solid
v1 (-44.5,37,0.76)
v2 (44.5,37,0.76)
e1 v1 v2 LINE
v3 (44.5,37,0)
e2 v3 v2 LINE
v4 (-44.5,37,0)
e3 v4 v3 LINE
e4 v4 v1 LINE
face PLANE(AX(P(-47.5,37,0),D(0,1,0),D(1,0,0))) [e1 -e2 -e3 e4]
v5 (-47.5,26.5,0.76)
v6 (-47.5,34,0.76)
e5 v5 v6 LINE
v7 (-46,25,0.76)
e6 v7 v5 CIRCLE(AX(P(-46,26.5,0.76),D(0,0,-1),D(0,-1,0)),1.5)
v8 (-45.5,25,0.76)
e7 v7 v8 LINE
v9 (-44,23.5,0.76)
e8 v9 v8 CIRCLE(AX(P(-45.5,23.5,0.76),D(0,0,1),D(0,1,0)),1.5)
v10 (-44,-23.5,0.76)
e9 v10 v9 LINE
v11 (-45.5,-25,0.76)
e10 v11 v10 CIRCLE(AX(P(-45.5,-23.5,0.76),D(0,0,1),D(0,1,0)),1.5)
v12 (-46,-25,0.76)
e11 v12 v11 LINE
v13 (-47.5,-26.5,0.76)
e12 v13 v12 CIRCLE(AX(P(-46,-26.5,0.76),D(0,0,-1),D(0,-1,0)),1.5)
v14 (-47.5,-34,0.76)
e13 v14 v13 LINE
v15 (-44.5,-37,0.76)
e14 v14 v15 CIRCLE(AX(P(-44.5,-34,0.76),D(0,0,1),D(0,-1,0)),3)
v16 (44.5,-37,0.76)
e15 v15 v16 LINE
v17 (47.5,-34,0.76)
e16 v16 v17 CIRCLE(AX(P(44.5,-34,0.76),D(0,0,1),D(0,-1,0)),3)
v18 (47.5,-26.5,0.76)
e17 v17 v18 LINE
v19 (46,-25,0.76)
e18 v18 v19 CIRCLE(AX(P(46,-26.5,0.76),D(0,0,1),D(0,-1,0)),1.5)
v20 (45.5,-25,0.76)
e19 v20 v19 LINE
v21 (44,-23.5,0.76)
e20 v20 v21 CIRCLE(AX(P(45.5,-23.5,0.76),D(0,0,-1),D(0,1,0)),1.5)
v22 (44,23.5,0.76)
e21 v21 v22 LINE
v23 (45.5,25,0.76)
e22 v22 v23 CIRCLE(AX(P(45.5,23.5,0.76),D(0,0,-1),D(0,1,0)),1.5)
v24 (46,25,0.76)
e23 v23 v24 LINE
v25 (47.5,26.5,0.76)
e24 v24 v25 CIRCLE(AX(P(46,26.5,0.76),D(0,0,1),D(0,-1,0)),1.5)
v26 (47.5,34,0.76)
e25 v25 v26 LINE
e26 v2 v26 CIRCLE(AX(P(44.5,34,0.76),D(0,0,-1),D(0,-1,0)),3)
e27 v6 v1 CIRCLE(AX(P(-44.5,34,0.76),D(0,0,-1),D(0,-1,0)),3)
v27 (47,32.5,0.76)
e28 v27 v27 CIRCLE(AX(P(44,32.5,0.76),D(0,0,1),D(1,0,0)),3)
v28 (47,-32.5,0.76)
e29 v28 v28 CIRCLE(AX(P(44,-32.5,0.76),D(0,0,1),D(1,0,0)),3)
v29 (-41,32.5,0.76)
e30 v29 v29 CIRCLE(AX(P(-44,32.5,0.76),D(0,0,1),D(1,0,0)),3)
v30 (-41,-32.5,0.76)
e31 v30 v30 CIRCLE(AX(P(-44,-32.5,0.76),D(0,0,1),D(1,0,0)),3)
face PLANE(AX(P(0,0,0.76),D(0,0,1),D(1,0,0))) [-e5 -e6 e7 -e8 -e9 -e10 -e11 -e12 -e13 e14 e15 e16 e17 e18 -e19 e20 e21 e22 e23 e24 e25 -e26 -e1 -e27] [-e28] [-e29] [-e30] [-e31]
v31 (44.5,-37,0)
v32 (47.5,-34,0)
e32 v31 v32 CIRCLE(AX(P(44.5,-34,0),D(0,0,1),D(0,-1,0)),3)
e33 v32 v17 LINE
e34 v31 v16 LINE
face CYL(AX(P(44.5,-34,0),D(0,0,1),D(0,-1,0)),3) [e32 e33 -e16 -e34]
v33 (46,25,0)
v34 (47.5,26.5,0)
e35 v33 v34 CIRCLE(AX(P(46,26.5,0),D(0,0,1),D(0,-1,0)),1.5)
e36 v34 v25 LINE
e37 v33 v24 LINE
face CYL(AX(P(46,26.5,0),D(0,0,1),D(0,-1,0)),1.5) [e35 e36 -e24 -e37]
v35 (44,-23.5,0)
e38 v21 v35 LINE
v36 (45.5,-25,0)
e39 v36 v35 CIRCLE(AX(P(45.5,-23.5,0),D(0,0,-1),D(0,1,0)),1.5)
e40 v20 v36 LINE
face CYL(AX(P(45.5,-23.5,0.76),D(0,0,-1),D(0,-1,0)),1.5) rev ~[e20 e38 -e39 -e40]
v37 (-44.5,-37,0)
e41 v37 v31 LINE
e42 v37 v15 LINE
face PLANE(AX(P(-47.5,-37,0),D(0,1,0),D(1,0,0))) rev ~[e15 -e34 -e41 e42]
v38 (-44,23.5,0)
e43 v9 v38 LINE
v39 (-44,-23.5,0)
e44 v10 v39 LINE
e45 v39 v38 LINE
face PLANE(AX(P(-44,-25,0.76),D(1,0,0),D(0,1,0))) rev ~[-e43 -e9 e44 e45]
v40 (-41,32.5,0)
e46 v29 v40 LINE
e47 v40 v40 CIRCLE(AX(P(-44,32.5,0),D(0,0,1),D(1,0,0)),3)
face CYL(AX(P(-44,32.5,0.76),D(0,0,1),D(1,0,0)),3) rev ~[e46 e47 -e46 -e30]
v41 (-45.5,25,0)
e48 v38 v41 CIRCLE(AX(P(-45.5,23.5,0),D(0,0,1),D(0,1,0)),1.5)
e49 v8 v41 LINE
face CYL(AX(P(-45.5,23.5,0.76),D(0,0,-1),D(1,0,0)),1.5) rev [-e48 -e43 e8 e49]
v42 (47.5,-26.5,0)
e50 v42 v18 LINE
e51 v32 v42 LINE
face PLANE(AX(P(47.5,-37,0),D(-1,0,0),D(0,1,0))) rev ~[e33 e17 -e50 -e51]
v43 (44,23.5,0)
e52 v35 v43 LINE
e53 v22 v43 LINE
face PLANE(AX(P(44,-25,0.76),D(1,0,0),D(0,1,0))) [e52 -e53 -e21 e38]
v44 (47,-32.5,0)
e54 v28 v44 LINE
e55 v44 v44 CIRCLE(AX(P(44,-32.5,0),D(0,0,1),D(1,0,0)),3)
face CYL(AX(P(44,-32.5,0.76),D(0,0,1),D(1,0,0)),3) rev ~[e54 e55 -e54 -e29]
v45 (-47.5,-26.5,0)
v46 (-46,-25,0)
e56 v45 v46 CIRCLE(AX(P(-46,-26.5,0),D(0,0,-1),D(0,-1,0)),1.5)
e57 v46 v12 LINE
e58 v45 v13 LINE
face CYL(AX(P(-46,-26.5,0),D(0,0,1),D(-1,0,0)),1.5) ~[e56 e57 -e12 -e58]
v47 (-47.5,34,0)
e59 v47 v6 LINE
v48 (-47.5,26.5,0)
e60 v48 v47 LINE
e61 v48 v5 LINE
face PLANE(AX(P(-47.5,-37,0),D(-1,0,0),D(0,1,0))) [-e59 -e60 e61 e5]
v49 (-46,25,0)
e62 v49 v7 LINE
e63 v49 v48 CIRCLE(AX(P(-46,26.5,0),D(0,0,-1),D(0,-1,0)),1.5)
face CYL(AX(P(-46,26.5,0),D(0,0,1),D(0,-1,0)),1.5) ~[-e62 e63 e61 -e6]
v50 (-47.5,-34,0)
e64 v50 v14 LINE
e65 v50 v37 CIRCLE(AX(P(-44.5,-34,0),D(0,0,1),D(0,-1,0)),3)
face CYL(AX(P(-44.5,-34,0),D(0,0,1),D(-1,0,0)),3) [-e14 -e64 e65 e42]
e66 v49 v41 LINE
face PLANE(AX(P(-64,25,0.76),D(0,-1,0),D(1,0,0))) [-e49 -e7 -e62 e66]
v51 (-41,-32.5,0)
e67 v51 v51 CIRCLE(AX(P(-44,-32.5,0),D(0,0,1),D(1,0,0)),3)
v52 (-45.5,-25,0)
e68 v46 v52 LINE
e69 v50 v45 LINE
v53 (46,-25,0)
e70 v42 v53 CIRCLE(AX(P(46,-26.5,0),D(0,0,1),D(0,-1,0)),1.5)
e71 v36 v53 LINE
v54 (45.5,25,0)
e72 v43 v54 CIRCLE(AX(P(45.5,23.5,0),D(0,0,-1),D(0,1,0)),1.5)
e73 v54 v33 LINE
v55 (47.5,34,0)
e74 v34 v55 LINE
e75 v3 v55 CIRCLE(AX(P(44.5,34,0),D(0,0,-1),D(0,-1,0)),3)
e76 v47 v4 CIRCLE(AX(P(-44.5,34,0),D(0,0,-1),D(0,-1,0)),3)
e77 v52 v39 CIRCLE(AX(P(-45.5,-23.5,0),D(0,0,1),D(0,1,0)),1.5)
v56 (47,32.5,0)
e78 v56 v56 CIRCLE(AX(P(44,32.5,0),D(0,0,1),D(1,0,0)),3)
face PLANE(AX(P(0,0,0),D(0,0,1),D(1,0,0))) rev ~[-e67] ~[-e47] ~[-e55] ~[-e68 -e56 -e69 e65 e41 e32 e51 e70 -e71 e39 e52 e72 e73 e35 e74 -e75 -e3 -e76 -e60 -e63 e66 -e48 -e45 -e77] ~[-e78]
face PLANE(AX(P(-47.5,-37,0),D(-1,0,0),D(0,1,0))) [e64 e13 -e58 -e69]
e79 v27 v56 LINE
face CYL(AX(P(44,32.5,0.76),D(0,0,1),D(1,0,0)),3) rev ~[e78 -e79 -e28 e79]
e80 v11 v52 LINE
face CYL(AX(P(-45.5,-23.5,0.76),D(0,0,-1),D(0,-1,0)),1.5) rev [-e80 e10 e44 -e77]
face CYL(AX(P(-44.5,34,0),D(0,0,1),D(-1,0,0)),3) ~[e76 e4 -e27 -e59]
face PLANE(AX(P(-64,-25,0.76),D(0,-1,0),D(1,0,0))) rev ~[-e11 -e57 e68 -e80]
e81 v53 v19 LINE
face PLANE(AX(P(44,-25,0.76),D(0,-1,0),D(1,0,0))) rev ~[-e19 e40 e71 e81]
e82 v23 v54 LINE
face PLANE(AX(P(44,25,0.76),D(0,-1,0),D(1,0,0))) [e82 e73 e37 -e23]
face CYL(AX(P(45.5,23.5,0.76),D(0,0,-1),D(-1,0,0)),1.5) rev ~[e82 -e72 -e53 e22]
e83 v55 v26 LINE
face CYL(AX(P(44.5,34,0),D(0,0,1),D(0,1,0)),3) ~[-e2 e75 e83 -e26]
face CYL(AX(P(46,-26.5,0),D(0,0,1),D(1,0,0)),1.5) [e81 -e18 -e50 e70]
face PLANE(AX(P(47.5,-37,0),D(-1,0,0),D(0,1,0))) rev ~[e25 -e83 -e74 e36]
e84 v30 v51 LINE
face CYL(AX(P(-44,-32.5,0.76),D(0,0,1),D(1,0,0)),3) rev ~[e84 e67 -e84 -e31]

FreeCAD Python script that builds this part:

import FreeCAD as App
import Part
import Sketcher

V = App.Vector
Q = App.Units.Quantity


def edges_at(feature, points):
    """Names of the edges that pass closest to the given points."""
    edges = feature.Shape.Edges
    near = lambda p: min(range(len(edges)), key=lambda i: edges[i].distToShape(Part.Vertex(*p))[0])
    return sorted({f"Edge{near(p) + 1}" for p in points})


def add_polygon(sketch, points):
    """Adds a closed chain of lines whose ends are joined by coincident constraints."""
    first, n = sketch.GeometryCount, len(points)
    for a, b in zip(points, points[1:] + points[:1]):
        sketch.addGeometry(Part.LineSegment(App.Vector(*a, 0), App.Vector(*b, 0)), False)
    for i in range(n):
        sketch.addConstraint(Sketcher.Constraint("Coincident", first + i, 2, first + (i + 1) % n, 1))

doc = App.newDocument("Part")
body = doc.addObject("PartDesign::Body", "Body")

# Sketch on XY plane
sketch1 = body.newObject("Sketcher::SketchObject", "Sketch")
sketch1.AttachmentSupport = (doc.getObject("XY_Plane"), [""])
sketch1.MapMode = "FlatFace"
add_polygon(sketch1, [(-48, 37), (-48, -37), (48, -37), (48, 37)])  # lines 0-3
sketch1.addConstraint(Sketcher.Constraint("Vertical", 0))
sketch1.addConstraint(Sketcher.Constraint("Horizontal", 1))
sketch1.addConstraint(Sketcher.Constraint("Vertical", 2))
sketch1.addConstraint(Sketcher.Constraint("Horizontal", 3))
sketch1.addConstraint(Sketcher.Constraint("Symmetric", 0, 2, 2, 2, -1, 1))
sketch1.addConstraint(Sketcher.Constraint("DistanceX", 1, 1, 1, 2, Q("95 mm")))
sketch1.addConstraint(Sketcher.Constraint("DistanceY", 0, 2, 0, 1, Q("74 mm")))
pad1 = body.newObject("PartDesign::Pad", "Pad")
pad1.Profile = sketch1
pad1.Length = 0.76

# Sketch on XY plane
sketch2 = body.newObject("Sketcher::SketchObject", "Sketch001")
sketch2.AttachmentSupport = (doc.getObject("XY_Plane"), [""])
sketch2.MapMode = "FlatFace"
sketch2.AttachmentOffset = App.Placement(V(0, 0, 0.76), App.Rotation())
sketch2.addGeometry(Part.Circle(V(-44, 32.5, 0), V(0, 0, 1), 3), False)  # 0
sketch2.addGeometry(Part.Circle(V(44, 32.5, 0), V(0, 0, 1), 3), False)  # 1
sketch2.addGeometry(Part.Circle(V(44, -32.5, 0), V(0, 0, 1), 3), False)  # 2
sketch2.addGeometry(Part.Circle(V(-44, -32.5, 0), V(0, 0, 1), 3), False)  # 3
add_polygon(sketch2, [(44, 25), (44, -25), (64, -25), (64, 25)])  # lines 4-7
add_polygon(sketch2, [(-64, 25), (-64, -25), (-44, -25), (-44, 25)])  # lines 8-11
sketch2.addConstraint(Sketcher.Constraint("Vertical", 4))
sketch2.addConstraint(Sketcher.Constraint("Horizontal", 5))
sketch2.addConstraint(Sketcher.Constraint("Vertical", 6))
sketch2.addConstraint(Sketcher.Constraint("Horizontal", 7))
sketch2.addConstraint(Sketcher.Constraint("Vertical", 8))
sketch2.addConstraint(Sketcher.Constraint("Horizontal", 9))
sketch2.addConstraint(Sketcher.Constraint("Vertical", 10))
sketch2.addConstraint(Sketcher.Constraint("Horizontal", 11))
sketch2.addConstraint(Sketcher.Constraint("Equal", 0, 1))
sketch2.addConstraint(Sketcher.Constraint("Equal", 1, 2))
sketch2.addConstraint(Sketcher.Constraint("Equal", 2, 3))
sketch2.addConstraint(Sketcher.Constraint("Symmetric", 0, 3, 2, 3, -1, 1))
sketch2.addConstraint(Sketcher.Constraint("Symmetric", 1, 3, 3, 3, -1, 1))
sketch2.addConstraint(Sketcher.Constraint("Symmetric", 6, 2, 8, 2, -1, 1))
sketch2.addConstraint(Sketcher.Constraint("Symmetric", 4, 2, 10, 2, -1, 1))
sketch2.addConstraint(Sketcher.Constraint("Symmetric", 0, 3, 1, 3, -2))
sketch2.addConstraint(Sketcher.Constraint("Horizontal", 5, 2, 8, 2))
sketch2.addConstraint(Sketcher.Constraint("Vertical", 2, 3, 4, 2))
sketch2.addConstraint(Sketcher.Constraint("Diameter", 0, Q("6 mm")))
sketch2.addConstraint(Sketcher.Constraint("DistanceX", 5, 1, 5, 2, Q("20 mm")))
sketch2.addConstraint(Sketcher.Constraint("DistanceY", 4, 2, 4, 1, Q("50 mm")))
sketch2.addConstraint(Sketcher.Constraint("DistanceX", 0, 3, -1, 1, Q("44 mm")))
sketch2.addConstraint(Sketcher.Constraint("DistanceY", 2, 3, 1, 3, Q("65 mm")))
pocket1 = body.newObject("PartDesign::Pocket", "Pocket")
pocket1.Profile = sketch2
pocket1.Length = 5
doc.recompute()

fillet = body.newObject("PartDesign::Fillet", "Fillet")
fillet.Base = (pocket1, edges_at(pocket1, [
    (-47.5, 37, 0.38),
    (47.5, 37, 0.38),
    (47.5, -37, 0.38),
    (-47.5, -37, 0.38),
]))
fillet.Radius = 3
doc.recompute()

fillet2 = body.newObject("PartDesign::Fillet", "Fillet001")
fillet2.Base = (fillet, edges_at(fillet, [
    (47.5, -25, 0.38),
    (44, -25, 0.38),
    (44, 25, 0.38),
    (47.5, 25, 0.38),
    (-44, 25, 0.38),
    (-47.5, 25, 0.38),
    (-44, -25, 0.38),
    (-47.5, -25, 0.38),
]))
fillet2.Radius = 1.5

doc.recompute()
